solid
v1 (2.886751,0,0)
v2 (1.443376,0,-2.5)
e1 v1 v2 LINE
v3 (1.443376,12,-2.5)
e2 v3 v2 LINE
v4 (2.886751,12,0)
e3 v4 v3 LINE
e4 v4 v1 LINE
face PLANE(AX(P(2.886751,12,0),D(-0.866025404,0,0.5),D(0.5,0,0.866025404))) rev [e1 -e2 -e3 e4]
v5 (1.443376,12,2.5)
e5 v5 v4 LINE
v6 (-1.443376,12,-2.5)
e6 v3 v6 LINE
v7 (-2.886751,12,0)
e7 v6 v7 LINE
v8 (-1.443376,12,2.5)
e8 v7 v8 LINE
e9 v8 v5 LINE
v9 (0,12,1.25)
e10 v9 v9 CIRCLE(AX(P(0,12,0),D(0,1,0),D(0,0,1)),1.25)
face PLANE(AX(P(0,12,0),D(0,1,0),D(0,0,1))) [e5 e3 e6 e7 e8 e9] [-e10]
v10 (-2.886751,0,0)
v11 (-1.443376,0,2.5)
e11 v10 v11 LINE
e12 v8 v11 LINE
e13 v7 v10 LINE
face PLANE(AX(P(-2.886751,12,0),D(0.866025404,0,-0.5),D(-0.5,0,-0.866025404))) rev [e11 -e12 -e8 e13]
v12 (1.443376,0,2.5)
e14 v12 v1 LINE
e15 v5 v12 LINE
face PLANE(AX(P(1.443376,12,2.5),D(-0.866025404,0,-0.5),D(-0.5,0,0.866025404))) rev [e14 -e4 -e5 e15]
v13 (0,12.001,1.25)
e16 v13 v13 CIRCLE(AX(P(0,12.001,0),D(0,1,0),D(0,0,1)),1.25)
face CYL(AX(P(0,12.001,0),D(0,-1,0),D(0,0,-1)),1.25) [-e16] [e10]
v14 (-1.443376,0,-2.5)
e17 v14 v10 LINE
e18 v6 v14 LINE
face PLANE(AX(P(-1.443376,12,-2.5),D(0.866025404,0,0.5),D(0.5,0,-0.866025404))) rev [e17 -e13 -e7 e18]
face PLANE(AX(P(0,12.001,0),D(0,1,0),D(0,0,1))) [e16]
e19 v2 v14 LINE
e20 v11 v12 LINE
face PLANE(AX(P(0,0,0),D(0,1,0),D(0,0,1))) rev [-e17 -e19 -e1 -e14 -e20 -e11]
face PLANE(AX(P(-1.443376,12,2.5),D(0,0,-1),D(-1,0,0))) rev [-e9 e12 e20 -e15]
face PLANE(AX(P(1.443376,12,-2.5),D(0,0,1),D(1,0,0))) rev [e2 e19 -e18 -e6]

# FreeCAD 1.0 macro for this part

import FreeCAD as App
import Part
import Sketcher
Q = App.Units.Quantity


def add_polygon(sketch, points):
    """Adds a closed chain of lines whose ends are joined by coincident constraints."""
    first, n = sketch.GeometryCount, len(points)
    for a, b in zip(points, points[1:] + points[:1]):
        sketch.addGeometry(Part.LineSegment(App.Vector(*a, 0), App.Vector(*b, 0)), False)
    for i in range(n):
        sketch.addConstraint(Sketcher.Constraint("Coincident", first + i, 2, first + (i + 1) % n, 1))

doc = App.newDocument("Part")
body = doc.addObject("PartDesign::Body", "Body")

# Sketch on XZ plane
sketch1 = body.newObject("Sketcher::SketchObject", "Sketch")
sketch1.AttachmentSupport = (doc.getObject("XZ_Plane"), [""])
sketch1.MapMode = "FlatFace"
add_polygon(sketch1, [(-2.9, 0), (-1.4, 2.5), (1.4, 2.5), (2.9, 0), (1.4, -2.5), (-1.4, -2.5)])  # lines 0-5
sketch1.addConstraint([
    Sketcher.Constraint("Horizontal", 1),
    Sketcher.Constraint("Horizontal", 4),
    Sketcher.Constraint("Symmetric", 0, 2, 3, 2, -1, 1),
    Sketcher.Constraint("Symmetric", 2, 2, 5, 2, -1, 1),
    Sketcher.Constraint("PointOnObject", 2, 2, -1),
    Sketcher.Constraint("Parallel", 2, 5),
    Sketcher.Constraint("Vertical", 1, 2, 3, 2),
    Sketcher.Constraint("Angle", 0, Q("60 deg")),
    Sketcher.Constraint("DistanceY", 3, 2, 1, 2, 5.0),
    Sketcher.Constraint("DistanceX", 1, 1, 1, 2, 2.886751),
])
pad1 = body.newObject("PartDesign::Pad", "Pad")
pad1.Profile = sketch1
pad1.Length = 12
pad1.Reversed = True

# Sketch on XZ plane
sketch2 = body.newObject("Sketcher::SketchObject", "Sketch001")
sketch2.AttachmentSupport = (doc.getObject("XZ_Plane"), [""])
sketch2.MapMode = "FlatFace"
sketch2.AttachmentOffset = App.Placement(App.Vector(0, 0, -12), App.Rotation())
sketch2.addGeometry(Part.Circle(App.Vector(0, 0, 0), App.Vector(0, 0, 1), 1.2), False)
sketch2.addConstraint([
    Sketcher.Constraint("Coincident", 0, 3, -1, 1),
    Sketcher.Constraint("Diameter", 0, 2.5),
])
pad2 = body.newObject("PartDesign::Pad", "Pad001")
pad2.Profile = sketch2
pad2.Length = 0.001
pad2.Reversed = True

doc.recompute()
